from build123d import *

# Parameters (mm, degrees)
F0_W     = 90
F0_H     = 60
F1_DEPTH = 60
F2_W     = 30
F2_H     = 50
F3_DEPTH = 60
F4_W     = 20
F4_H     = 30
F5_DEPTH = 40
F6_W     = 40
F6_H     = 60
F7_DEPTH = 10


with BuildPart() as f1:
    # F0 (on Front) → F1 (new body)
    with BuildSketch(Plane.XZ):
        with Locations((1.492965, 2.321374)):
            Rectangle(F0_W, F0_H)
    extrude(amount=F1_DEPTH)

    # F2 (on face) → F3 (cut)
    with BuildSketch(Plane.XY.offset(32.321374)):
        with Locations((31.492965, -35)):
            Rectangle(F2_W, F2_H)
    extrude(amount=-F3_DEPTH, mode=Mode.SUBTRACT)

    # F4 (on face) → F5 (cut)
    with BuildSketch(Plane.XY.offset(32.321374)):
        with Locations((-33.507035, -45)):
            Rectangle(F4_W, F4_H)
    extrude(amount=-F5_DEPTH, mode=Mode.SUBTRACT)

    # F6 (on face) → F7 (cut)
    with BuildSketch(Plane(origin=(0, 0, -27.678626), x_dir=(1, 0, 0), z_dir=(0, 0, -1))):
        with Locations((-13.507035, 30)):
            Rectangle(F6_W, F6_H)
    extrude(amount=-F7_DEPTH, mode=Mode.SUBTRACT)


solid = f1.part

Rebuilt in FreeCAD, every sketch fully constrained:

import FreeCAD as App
import Part
import Sketcher

V = App.Vector
Q = App.Units.Quantity

doc = App.newDocument("Part")
body = doc.addObject("PartDesign::Body", "Body")

# Sketch on XZ plane
sketch1 = body.newObject("Sketcher::SketchObject", "Sketch")
sketch1.AttachmentSupport = (doc.getObject("XZ_Plane"), [""])
sketch1.MapMode = "FlatFace"
sketch1.addGeometry(Part.LineSegment(V(-43.507035, 32.321374, 0), V(-43.507035, -27.678626, 0)), False)
sketch1.addGeometry(Part.LineSegment(V(-43.507035, -27.678626, 0), V(46.492965, -27.678626, 0)), False)
sketch1.addGeometry(Part.LineSegment(V(46.492965, -27.678626, 0), V(46.492965, 32.321374, 0)), False)
sketch1.addGeometry(Part.LineSegment(V(46.492965, 32.321374, 0), V(-43.507035, 32.321374, 0)), False)
sketch1.addConstraint(Sketcher.Constraint("Coincident", 0, 2, 1, 1))
sketch1.addConstraint(Sketcher.Constraint("Coincident", 1, 2, 2, 1))
sketch1.addConstraint(Sketcher.Constraint("Coincident", 2, 2, 3, 1))
sketch1.addConstraint(Sketcher.Constraint("Coincident", 3, 2, 0, 1))
sketch1.addConstraint(Sketcher.Constraint("Vertical", 0))
sketch1.addConstraint(Sketcher.Constraint("Horizontal", 1))
sketch1.addConstraint(Sketcher.Constraint("Vertical", 2))
sketch1.addConstraint(Sketcher.Constraint("Horizontal", 3))
sketch1.addConstraint(Sketcher.Constraint("DistanceX", 1, 1, 1, 2, Q("90 mm")))
sketch1.addConstraint(Sketcher.Constraint("DistanceY", 0, 2, 0, 1, Q("60 mm")))
sketch1.addConstraint(Sketcher.Constraint("DistanceX", 0, 2, -1, 1, Q("43.507035 mm")))
sketch1.addConstraint(Sketcher.Constraint("DistanceY", 0, 2, -1, 1, Q("27.678626 mm")))
pad1 = body.newObject("PartDesign::Pad", "Pad")
pad1.Profile = sketch1
pad1.Length = 60

# Sketch on XY plane
sketch2 = body.newObject("Sketcher::SketchObject", "Sketch001")
sketch2.AttachmentSupport = (doc.getObject("XY_Plane"), [""])
sketch2.MapMode = "FlatFace"
sketch2.AttachmentOffset = App.Placement(V(0, 0, 32.321374), App.Rotation())
sketch2.addGeometry(Part.LineSegment(V(16.492965, -10, 0), V(16.492965, -60, 0)), False)
sketch2.addGeometry(Part.LineSegment(V(16.492965, -60, 0), V(46.492965, -60, 0)), False)
sketch2.addGeometry(Part.LineSegment(V(46.492965, -60, 0), V(46.492965, -10, 0)), False)
sketch2.addGeometry(Part.LineSegment(V(46.492965, -10, 0), V(16.492965, -10, 0)), False)
sketch2.addConstraint(Sketcher.Constraint("Coincident", 0, 2, 1, 1))
sketch2.addConstraint(Sketcher.Constraint("Coincident", 1, 2, 2, 1))
sketch2.addConstraint(Sketcher.Constraint("Coincident", 2, 2, 3, 1))
sketch2.addConstraint(Sketcher.Constraint("Coincident", 3, 2, 0, 1))
sketch2.addConstraint(Sketcher.Constraint("Vertical", 0))
sketch2.addConstraint(Sketcher.Constraint("Horizontal", 1))
sketch2.addConstraint(Sketcher.Constraint("Vertical", 2))
sketch2.addConstraint(Sketcher.Constraint("Horizontal", 3))
sketch2.addConstraint(Sketcher.Constraint("DistanceX", 1, 1, 1, 2, Q("30 mm")))
sketch2.addConstraint(Sketcher.Constraint("DistanceY", 0, 2, 0, 1, Q("50 mm")))
sketch2.addConstraint(Sketcher.Constraint("DistanceY", 0, 2, -1, 1, Q("60 mm")))
sketch2.addConstraint(Sketcher.Constraint("DistanceX", -1, 1, 0, 2, Q("16.492965 mm")))
pocket1 = body.newObject("PartDesign::Pocket", "Pocket")
pocket1.Profile = sketch2
pocket1.Length = 60

# Sketch on XY plane
sketch3 = body.newObject("Sketcher::SketchObject", "Sketch002")
sketch3.AttachmentSupport = (doc.getObject("XY_Plane"), [""])
sketch3.MapMode = "FlatFace"
sketch3.AttachmentOffset = App.Placement(V(0, 0, 32.321374), App.Rotation())
sketch3.addGeometry(Part.LineSegment(V(-43.507035, -30, 0), V(-43.507035, -60, 0)), False)
sketch3.addGeometry(Part.LineSegment(V(-43.507035, -60, 0), V(-23.507035, -60, 0)), False)
sketch3.addGeometry(Part.LineSegment(V(-23.507035, -60, 0), V(-23.507035, -30, 0)), False)
sketch3.addGeometry(Part.LineSegment(V(-23.507035, -30, 0), V(-43.507035, -30, 0)), False)
sketch3.addConstraint(Sketcher.Constraint("Coincident", 0, 2, 1, 1))
sketch3.addConstraint(Sketcher.Constraint("Coincident", 1, 2, 2, 1))
sketch3.addConstraint(Sketcher.Constraint("Coincident", 2, 2, 3, 1))
sketch3.addConstraint(Sketcher.Constraint("Coincident", 3, 2, 0, 1))
sketch3.addConstraint(Sketcher.Constraint("Vertical", 0))
sketch3.addConstraint(Sketcher.Constraint("Horizontal", 1))
sketch3.addConstraint(Sketcher.Constraint("Vertical", 2))
sketch3.addConstraint(Sketcher.Constraint("Horizontal", 3))
sketch3.addConstraint(Sketcher.Constraint("DistanceX", 1, 1, 1, 2, Q("20 mm")))
sketch3.addConstraint(Sketcher.Constraint("DistanceY", 0, 2, 0, 1, Q("30 mm")))
sketch3.addConstraint(Sketcher.Constraint("DistanceY", 0, 2, -1, 1, Q("60 mm")))
sketch3.addConstraint(Sketcher.Constraint("DistanceX", 0, 2, -1, 1, Q("43.507035 mm")))
pocket2 = body.newObject("PartDesign::Pocket", "Pocket001")
pocket2.Profile = sketch3
pocket2.Length = 40

# Sketch on XY plane
sketch4 = body.newObject("Sketcher::SketchObject", "Sketch003")
sketch4.AttachmentSupport = (doc.getObject("XY_Plane"), [""])
sketch4.MapMode = "FlatFace"
sketch4.AttachmentOffset = App.Placement(V(0, 0, -27.678626), App.Rotation())
sketch4.addGeometry(Part.LineSegment(V(-33.507035, -60, 0), V(-33.507035, 0, 0)), False)
sketch4.addGeometry(Part.LineSegment(V(-33.507035, 0, 0), V(6.492965, 0, 0)), False)
sketch4.addGeometry(Part.LineSegment(V(6.492965, 0, 0), V(6.492965, -60, 0)), False)
sketch4.addGeometry(Part.LineSegment(V(6.492965, -60, 0), V(-33.507035, -60, 0)), False)
sketch4.addConstraint(Sketcher.Constraint("Coincident", 0, 2, 1, 1))
sketch4.addConstraint(Sketcher.Constraint("Coincident", 1, 2, 2, 1))
sketch4.addConstraint(Sketcher.Constraint("Coincident", 2, 2, 3, 1))
sketch4.addConstraint(Sketcher.Constraint("Coincident", 3, 2, 0, 1))
sketch4.addConstraint(Sketcher.Constraint("Vertical", 0))
sketch4.addConstraint(Sketcher.Constraint("Horizontal", 1))
sketch4.addConstraint(Sketcher.Constraint("Vertical", 2))
sketch4.addConstraint(Sketcher.Constraint("Horizontal", 3))
sketch4.addConstraint(Sketcher.Constraint("PointOnObject", 0, 2, -1))
sketch4.addConstraint(Sketcher.Constraint("DistanceX", 1, 1, 1, 2, Q("40 mm")))
sketch4.addConstraint(Sketcher.Constraint("DistanceY", 0, 1, 0, 2, Q("60 mm")))
sketch4.addConstraint(Sketcher.Constraint("DistanceX", 0, 2, -1, 1, Q("33.507035 mm")))
pocket3 = body.newObject("PartDesign::Pocket", "Pocket002")
pocket3.Profile = sketch4
pocket3.Length = 10
pocket3.Reversed = True

doc.recompute()
